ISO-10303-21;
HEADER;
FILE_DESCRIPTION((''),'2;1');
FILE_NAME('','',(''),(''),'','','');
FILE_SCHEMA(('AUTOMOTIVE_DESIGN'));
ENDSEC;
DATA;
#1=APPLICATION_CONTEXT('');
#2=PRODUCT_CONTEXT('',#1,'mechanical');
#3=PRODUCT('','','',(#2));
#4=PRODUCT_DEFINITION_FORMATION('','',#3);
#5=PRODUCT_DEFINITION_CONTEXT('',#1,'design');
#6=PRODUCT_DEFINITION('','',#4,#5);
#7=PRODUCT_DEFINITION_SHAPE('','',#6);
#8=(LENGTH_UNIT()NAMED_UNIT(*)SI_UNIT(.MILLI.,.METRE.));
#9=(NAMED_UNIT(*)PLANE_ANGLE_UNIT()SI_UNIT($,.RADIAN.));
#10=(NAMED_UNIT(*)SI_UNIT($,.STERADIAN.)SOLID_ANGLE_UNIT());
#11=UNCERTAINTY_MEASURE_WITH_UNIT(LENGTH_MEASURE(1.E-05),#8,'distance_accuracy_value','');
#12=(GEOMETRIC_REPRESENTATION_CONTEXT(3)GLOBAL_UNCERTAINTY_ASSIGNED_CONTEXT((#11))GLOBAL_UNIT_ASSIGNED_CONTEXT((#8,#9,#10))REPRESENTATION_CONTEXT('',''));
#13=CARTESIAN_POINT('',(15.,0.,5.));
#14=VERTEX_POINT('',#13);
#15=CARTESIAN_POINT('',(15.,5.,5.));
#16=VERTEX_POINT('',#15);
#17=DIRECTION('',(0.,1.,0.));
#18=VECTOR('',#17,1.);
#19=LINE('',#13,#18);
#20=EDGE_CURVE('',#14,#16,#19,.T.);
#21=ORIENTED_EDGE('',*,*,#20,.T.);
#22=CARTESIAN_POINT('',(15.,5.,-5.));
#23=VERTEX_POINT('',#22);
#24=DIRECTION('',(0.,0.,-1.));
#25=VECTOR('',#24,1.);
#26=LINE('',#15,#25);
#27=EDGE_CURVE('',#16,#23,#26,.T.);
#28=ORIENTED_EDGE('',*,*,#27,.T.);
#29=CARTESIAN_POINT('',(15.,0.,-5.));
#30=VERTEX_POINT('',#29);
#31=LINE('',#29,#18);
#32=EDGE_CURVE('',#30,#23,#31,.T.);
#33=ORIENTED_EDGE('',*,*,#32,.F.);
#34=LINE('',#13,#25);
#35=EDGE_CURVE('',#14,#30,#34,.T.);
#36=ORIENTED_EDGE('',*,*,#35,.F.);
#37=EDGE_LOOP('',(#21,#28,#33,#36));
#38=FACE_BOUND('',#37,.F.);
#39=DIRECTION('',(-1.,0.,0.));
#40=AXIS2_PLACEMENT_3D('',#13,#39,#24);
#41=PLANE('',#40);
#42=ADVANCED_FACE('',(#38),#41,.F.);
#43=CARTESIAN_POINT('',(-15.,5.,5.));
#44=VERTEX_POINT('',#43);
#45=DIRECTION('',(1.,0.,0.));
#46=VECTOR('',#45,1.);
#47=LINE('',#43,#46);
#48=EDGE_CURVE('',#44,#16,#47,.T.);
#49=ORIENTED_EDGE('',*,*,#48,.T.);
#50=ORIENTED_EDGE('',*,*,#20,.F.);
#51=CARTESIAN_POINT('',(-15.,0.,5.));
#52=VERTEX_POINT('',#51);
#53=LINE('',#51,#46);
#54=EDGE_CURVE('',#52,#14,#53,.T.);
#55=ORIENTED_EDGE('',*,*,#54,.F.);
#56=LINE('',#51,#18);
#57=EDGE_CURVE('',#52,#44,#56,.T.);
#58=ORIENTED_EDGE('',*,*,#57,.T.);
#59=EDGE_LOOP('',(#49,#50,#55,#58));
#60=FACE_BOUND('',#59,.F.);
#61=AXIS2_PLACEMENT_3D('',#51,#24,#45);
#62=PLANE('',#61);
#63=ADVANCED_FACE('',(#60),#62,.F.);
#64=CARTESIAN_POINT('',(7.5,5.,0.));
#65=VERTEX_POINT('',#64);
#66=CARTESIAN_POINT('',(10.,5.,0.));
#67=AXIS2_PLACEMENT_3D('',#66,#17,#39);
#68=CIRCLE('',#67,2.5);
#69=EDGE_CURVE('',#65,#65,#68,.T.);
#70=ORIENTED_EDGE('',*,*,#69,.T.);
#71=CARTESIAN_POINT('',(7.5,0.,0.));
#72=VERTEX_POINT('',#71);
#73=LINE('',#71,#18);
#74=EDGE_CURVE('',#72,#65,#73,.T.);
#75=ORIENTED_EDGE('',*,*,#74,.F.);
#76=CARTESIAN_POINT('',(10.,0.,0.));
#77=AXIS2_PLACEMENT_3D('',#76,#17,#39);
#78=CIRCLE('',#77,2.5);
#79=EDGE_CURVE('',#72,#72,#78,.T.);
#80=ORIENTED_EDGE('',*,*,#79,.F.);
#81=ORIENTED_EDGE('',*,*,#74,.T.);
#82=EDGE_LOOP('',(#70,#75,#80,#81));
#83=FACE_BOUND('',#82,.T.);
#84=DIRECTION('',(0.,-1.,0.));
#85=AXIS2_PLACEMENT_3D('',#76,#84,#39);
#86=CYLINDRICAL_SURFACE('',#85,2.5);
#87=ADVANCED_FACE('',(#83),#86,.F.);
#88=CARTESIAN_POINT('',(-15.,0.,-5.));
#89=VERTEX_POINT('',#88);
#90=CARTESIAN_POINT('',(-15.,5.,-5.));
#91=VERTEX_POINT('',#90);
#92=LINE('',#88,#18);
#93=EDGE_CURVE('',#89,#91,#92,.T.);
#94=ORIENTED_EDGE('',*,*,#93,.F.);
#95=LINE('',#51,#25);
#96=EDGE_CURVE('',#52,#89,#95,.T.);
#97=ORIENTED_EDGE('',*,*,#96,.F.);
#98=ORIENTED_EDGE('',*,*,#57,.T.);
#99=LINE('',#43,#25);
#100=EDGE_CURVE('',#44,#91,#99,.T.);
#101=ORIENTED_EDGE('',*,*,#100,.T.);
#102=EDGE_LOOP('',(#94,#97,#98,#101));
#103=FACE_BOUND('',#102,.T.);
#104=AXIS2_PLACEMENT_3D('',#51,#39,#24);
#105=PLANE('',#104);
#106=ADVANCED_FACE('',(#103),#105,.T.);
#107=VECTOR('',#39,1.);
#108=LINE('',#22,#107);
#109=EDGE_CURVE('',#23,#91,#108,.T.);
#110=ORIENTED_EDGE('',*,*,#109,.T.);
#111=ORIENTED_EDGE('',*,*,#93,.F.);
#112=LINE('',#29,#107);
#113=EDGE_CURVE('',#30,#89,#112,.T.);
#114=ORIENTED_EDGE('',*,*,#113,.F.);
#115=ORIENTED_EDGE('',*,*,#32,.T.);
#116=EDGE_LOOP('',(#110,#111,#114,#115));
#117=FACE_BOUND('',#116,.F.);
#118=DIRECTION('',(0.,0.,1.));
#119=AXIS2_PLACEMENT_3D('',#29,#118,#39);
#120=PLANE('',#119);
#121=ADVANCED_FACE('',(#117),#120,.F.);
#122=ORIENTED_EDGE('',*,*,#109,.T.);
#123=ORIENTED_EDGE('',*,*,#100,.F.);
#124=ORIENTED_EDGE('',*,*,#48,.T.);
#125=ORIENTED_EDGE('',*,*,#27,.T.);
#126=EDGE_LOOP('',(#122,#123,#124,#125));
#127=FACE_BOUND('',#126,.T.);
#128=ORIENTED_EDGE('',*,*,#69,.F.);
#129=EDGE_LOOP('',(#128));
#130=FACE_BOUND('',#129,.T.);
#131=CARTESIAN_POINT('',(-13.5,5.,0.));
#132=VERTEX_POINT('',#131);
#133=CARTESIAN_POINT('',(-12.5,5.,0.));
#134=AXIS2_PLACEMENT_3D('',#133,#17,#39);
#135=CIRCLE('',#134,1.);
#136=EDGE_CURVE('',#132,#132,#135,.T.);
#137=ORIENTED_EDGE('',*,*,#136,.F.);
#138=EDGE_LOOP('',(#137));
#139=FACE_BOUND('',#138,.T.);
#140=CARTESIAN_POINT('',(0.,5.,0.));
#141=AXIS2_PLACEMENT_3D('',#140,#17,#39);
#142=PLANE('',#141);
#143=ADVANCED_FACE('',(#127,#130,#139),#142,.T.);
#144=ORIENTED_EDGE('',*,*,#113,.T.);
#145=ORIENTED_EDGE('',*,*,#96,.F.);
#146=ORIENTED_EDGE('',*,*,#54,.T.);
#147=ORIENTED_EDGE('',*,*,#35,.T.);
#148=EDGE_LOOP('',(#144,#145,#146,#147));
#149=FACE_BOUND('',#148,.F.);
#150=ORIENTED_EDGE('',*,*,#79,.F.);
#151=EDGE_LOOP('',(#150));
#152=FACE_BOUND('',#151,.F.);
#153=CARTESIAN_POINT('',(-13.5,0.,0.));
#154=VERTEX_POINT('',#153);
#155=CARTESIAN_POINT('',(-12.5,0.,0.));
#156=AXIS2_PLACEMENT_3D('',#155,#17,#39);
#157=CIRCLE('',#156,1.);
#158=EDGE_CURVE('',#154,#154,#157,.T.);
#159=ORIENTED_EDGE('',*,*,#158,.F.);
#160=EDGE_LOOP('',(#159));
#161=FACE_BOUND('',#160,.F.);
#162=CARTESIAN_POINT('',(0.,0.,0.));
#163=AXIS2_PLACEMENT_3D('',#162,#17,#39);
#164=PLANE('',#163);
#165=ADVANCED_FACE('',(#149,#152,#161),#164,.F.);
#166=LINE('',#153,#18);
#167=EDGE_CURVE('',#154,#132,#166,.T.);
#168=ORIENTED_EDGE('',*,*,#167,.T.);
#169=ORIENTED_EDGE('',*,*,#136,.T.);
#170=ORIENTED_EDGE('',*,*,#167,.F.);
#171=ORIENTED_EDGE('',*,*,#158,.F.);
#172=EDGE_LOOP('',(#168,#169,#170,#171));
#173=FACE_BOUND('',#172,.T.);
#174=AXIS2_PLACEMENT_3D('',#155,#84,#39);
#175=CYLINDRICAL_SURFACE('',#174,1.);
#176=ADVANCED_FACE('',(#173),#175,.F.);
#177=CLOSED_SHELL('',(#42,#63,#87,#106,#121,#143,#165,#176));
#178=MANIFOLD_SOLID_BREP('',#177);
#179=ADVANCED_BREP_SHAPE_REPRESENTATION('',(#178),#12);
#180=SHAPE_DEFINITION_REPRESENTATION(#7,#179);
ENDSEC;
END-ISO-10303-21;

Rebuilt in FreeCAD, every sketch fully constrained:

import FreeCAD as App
import Part
import Sketcher

V = App.Vector
Q = App.Units.Quantity

doc = App.newDocument("Part")
body = doc.addObject("PartDesign::Body", "Body")

sketch1 = body.newObject("Sketcher::SketchObject", "Sketch")
sketch1.AttachmentSupport = (doc.getObject("XZ_Plane"), [""])
sketch1.MapMode = "FlatFace"
sketch1.addGeometry([
    Part.LineSegment(V(15, 5, 0), V(15, -5, 0)),
    Part.LineSegment(V(15, -5, 0), V(-15, -5, 0)),
    Part.LineSegment(V(-15, -5, 0), V(-15, 5, 0)),
    Part.LineSegment(V(-15, 5, 0), V(15, 5, 0)),
    Part.Circle(V(10, 0, 0), V(0, 0, 1), 2.5),
    Part.Circle(V(-12.5, 0, 0), V(0, 0, 1), 1),
], False)
sketch1.addConstraint([
    Sketcher.Constraint("Coincident", 0, 2, 1, 1),
    Sketcher.Constraint("Coincident", 1, 2, 2, 1),
    Sketcher.Constraint("Coincident", 2, 2, 3, 1),
    Sketcher.Constraint("Coincident", 3, 2, 0, 1),
    Sketcher.Constraint("Vertical", 0),
    Sketcher.Constraint("Horizontal", 1),
    Sketcher.Constraint("Vertical", 2),
    Sketcher.Constraint("Horizontal", 3),
    Sketcher.Constraint("Symmetric", 0, 2, 2, 2, -1, 1),
    Sketcher.Constraint("PointOnObject", 4, 3, -1),
    Sketcher.Constraint("PointOnObject", 5, 3, -1),
    Sketcher.Constraint("Diameter", 4, Q("5 mm")),
    Sketcher.Constraint("Diameter", 5, Q("2 mm")),
    Sketcher.Constraint("DistanceX", 1, 2, 1, 1, Q("30 mm")),
    Sketcher.Constraint("DistanceY", 0, 2, 0, 1, Q("10 mm")),
    Sketcher.Constraint("DistanceX", -1, 1, 4, 3, Q("10 mm")),
    Sketcher.Constraint("DistanceX", 1, 2, 5, 3, Q("2.5 mm")),
])
pad1 = body.newObject("PartDesign::Pad", "Pad")
pad1.Profile = sketch1
pad1.Length = 5
pad1.Reversed = True

doc.recompute()
